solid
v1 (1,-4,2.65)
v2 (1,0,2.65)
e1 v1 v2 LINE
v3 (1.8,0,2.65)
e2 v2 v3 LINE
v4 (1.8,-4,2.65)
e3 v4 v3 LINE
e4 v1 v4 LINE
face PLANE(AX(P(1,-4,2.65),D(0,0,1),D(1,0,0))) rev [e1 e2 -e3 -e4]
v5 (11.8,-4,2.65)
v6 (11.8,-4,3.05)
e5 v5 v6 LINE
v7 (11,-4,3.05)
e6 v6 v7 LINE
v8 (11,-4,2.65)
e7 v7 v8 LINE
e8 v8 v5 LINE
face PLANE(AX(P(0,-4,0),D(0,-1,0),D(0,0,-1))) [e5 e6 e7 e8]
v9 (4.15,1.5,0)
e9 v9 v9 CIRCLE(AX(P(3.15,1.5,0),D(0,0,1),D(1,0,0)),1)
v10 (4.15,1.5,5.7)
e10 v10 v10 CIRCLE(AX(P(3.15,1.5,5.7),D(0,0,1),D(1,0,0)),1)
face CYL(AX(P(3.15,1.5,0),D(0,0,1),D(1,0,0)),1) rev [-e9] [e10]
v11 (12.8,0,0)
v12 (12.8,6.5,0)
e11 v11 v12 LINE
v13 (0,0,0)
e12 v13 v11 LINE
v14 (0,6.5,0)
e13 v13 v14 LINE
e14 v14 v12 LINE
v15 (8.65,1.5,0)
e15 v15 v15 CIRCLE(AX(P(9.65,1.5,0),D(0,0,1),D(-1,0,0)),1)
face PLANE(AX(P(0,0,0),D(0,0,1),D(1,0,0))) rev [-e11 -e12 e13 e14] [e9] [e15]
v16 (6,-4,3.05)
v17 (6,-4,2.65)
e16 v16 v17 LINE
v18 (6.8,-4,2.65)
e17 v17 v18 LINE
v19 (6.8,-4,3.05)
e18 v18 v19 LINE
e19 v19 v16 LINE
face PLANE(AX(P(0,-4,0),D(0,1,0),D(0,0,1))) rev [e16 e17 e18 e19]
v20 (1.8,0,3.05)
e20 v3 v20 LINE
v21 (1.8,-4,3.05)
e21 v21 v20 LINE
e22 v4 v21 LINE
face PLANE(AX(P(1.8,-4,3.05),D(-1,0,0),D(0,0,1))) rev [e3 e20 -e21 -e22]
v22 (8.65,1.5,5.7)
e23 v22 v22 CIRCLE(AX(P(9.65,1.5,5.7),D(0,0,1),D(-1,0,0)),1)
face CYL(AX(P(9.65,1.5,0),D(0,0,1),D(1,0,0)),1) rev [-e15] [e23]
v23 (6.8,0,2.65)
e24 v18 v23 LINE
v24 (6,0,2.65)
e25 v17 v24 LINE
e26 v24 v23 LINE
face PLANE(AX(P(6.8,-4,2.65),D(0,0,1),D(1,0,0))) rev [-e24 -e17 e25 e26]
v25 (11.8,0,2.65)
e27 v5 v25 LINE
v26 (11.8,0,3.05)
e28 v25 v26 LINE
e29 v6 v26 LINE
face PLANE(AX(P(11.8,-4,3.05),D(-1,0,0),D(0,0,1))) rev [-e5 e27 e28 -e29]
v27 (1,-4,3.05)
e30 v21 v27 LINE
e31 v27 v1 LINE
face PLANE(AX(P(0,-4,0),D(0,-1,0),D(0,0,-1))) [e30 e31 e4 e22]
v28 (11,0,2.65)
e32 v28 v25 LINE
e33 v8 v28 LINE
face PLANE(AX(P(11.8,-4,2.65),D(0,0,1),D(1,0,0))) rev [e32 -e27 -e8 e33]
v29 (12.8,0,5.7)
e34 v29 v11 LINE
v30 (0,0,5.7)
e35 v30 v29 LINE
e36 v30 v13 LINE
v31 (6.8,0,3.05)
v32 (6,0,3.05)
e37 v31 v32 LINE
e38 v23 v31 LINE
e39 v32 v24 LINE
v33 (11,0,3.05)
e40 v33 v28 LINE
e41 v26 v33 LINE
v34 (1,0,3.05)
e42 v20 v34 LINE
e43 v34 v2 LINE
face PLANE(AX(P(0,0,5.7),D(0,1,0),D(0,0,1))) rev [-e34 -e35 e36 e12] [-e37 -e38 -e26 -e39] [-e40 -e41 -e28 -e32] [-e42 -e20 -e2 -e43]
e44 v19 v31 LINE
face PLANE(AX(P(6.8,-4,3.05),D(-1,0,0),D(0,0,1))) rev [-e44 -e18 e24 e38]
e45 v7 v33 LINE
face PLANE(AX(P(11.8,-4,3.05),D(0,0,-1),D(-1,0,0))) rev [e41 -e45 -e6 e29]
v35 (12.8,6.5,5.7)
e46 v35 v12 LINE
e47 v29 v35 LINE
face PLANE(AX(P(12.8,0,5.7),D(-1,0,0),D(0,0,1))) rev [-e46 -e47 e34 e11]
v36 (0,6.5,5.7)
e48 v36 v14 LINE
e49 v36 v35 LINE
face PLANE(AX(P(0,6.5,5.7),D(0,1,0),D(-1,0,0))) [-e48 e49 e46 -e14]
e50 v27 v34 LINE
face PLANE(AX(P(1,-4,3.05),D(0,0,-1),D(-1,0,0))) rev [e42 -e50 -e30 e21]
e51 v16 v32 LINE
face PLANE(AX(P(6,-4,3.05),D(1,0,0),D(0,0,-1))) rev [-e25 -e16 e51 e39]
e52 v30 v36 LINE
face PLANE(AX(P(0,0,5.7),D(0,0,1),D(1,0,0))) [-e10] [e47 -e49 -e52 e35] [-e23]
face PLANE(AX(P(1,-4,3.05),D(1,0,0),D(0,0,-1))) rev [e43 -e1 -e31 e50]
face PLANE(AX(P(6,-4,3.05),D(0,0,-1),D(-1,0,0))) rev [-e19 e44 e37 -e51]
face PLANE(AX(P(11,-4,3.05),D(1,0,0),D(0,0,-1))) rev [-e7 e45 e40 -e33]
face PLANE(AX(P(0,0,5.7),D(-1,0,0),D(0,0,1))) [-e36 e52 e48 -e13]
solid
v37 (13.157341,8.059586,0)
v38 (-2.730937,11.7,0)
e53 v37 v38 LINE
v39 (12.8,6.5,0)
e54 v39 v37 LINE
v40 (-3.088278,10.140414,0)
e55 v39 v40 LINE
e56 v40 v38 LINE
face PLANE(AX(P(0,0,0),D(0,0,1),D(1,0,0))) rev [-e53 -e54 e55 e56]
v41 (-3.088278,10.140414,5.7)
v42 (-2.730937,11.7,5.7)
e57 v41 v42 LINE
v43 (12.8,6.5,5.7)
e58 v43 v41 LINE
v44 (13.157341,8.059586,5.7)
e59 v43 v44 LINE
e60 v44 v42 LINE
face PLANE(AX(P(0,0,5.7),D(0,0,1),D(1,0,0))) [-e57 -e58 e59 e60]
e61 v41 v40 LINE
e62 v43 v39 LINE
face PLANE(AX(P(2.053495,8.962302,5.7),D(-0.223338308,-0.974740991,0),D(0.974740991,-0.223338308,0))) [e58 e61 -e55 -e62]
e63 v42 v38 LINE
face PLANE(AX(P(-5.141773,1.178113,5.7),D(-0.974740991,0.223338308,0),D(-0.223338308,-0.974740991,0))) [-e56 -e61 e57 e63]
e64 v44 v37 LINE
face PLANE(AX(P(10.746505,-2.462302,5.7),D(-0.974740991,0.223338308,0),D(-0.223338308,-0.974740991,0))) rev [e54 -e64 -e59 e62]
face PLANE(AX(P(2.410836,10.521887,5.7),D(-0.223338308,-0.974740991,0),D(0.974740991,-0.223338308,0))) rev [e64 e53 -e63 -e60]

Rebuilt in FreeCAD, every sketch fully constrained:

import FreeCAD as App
import Part
import Sketcher
from FreeCAD import Vector
Q = App.Units.Quantity

doc = App.newDocument("Part")
body = doc.addObject("PartDesign::Body", "Body")

# Sketch on XY plane
sketch1 = doc.addObject("Sketcher::SketchObject", "Sketch")
body.addObject(sketch1)
sketch1.AttachmentSupport = (doc.XY_Plane, [""])
sketch1.MapMode = "FlatFace"
sketch1.addGeometry([
    Part.LineSegment(Vector(12.8, 6.5, 0), Vector(13.157341, 8.059586, 0)),
    Part.LineSegment(Vector(13.157341, 8.059586, 0), Vector(-2.730937, 11.7, 0)),
    Part.LineSegment(Vector(-2.730937, 11.7, 0), Vector(-3.088278, 10.140414, 0)),
    Part.LineSegment(Vector(-3.088278, 10.140414, 0), Vector(12.8, 6.5, 0)),
], False)
sketch1.addConstraint([
    Sketcher.Constraint("Coincident", 0, 2, 1, 1),
    Sketcher.Constraint("Coincident", 1, 2, 2, 1),
    Sketcher.Constraint("Coincident", 2, 2, 3, 1),
    Sketcher.Constraint("Coincident", 3, 2, 0, 1),
    Sketcher.Constraint("Perpendicular", 0, 1),
    Sketcher.Constraint("Perpendicular", 1, 2),
    Sketcher.Constraint("Perpendicular", 2, 3),
    Sketcher.Constraint("Distance", 0, Q("1.6 mm")),
    Sketcher.Constraint("Distance", 1, Q("16.3 mm")),
    Sketcher.Constraint("DistanceY", -1, 1, 1, 2, Q("11.7 mm")),
    Sketcher.Constraint("DistanceX", -1, 1, 3, 2, Q("12.8 mm")),
    Sketcher.Constraint("DistanceY", -1, 1, 3, 2, Q("6.5 mm")),
])
pad1 = doc.addObject("PartDesign::Pad", "Pad")
body.addObject(pad1)
pad1.Profile = sketch1
pad1.Length = 5.7
body2 = doc.addObject("PartDesign::Body", "Body001")

# Sketch on XY plane
sketch2 = doc.addObject("Sketcher::SketchObject", "Sketch001")
body2.addObject(sketch2)
sketch2.AttachmentSupport = (doc.getObject("XY_Plane001"), [""])
sketch2.MapMode = "FlatFace"
sketch2.addGeometry([
    Part.LineSegment(Vector(0, 6.5, 0), Vector(0, 0, 0)),
    Part.LineSegment(Vector(0, 0, 0), Vector(12.8, 0, 0)),
    Part.LineSegment(Vector(12.8, 0, 0), Vector(12.8, 6.5, 0)),
    Part.LineSegment(Vector(12.8, 6.5, 0), Vector(0, 6.5, 0)),
], False)
sketch2.addConstraint([
    Sketcher.Constraint("Coincident", 0, 2, 1, 1),
    Sketcher.Constraint("Coincident", 1, 2, 2, 1),
    Sketcher.Constraint("Coincident", 2, 2, 3, 1),
    Sketcher.Constraint("Coincident", 3, 2, 0, 1),
    Sketcher.Constraint("Vertical", 0),
    Sketcher.Constraint("Horizontal", 1),
    Sketcher.Constraint("Vertical", 2),
    Sketcher.Constraint("Horizontal", 3),
    Sketcher.Constraint("Coincident", 0, 2, -1, 1),
    Sketcher.Constraint("DistanceX", 1, 1, 1, 2, Q("12.8 mm")),
    Sketcher.Constraint("DistanceY", 0, 2, 0, 1, Q("6.5 mm")),
])
pad2 = doc.addObject("PartDesign::Pad", "Pad001")
body2.addObject(pad2)
pad2.Profile = sketch2
pad2.Length = 5.7

# Sketch on XY plane
sketch3 = doc.addObject("Sketcher::SketchObject", "Sketch002")
body2.addObject(sketch3)
sketch3.AttachmentSupport = (doc.getObject("XY_Plane001"), [""])
sketch3.MapMode = "FlatFace"
sketch3.AttachmentOffset = App.Placement(Vector(0, 0, 5.7), App.Rotation())
sketch3.addGeometry([
    Part.Circle(Vector(3.15, 1.5, 0), Vector(0, 0, 1), 1),
    Part.Circle(Vector(9.65, 1.5, 0), Vector(0, 0, 1), 1),
], False)
sketch3.addConstraint([
    Sketcher.Constraint("Equal", 0, 1),
    Sketcher.Constraint("Horizontal", 0, 3, 1, 3),
    Sketcher.Constraint("Diameter", 0, Q("2 mm")),
    Sketcher.Constraint("DistanceY", -1, 1, 0, 3, Q("1.5 mm")),
    Sketcher.Constraint("DistanceX", 0, 3, 1, 3, Q("6.5 mm")),
    Sketcher.Constraint("DistanceX", -1, 1, 0, 3, Q("3.15 mm")),
])
pocket1 = doc.addObject("PartDesign::Pocket", "Pocket")
body2.addObject(pocket1)
pocket1.Profile = sketch3
pocket1.Length = 5.7

# Sketch on XZ plane
sketch4 = doc.addObject("Sketcher::SketchObject", "Sketch003")
body2.addObject(sketch4)
sketch4.AttachmentSupport = (doc.getObject("XZ_Plane001"), [""])
sketch4.MapMode = "FlatFace"
sketch4.addGeometry([
    Part.LineSegment(Vector(6, 3.05, 0), Vector(6, 2.65, 0)),  # 0
    Part.LineSegment(Vector(6, 2.65, 0), Vector(6.8, 2.65, 0)),  # 1
    Part.LineSegment(Vector(6.8, 2.65, 0), Vector(6.8, 3.05, 0)),  # 2
    Part.LineSegment(Vector(6.8, 3.05, 0), Vector(6, 3.05, 0)),  # 3
    Part.LineSegment(Vector(1, 3.05, 0), Vector(1, 2.65, 0)),  # 4
    Part.LineSegment(Vector(1, 2.65, 0), Vector(1.8, 2.65, 0)),  # 5
    Part.LineSegment(Vector(1.8, 2.65, 0), Vector(1.8, 3.05, 0)),  # 6
    Part.LineSegment(Vector(1.8, 3.05, 0), Vector(1, 3.05, 0)),  # 7
    Part.LineSegment(Vector(11, 3.05, 0), Vector(11, 2.65, 0)),  # 8
    Part.LineSegment(Vector(11, 2.65, 0), Vector(11.8, 2.65, 0)),  # 9
    Part.LineSegment(Vector(11.8, 2.65, 0), Vector(11.8, 3.05, 0)),  # 10
    Part.LineSegment(Vector(11.8, 3.05, 0), Vector(11, 3.05, 0)),  # 11
], False)
sketch4.addConstraint([
    Sketcher.Constraint("Coincident", 0, 2, 1, 1),
    Sketcher.Constraint("Coincident", 1, 2, 2, 1),
    Sketcher.Constraint("Coincident", 2, 2, 3, 1),
    Sketcher.Constraint("Coincident", 3, 2, 0, 1),
    Sketcher.Constraint("Coincident", 4, 2, 5, 1),
    Sketcher.Constraint("Coincident", 5, 2, 6, 1),
    Sketcher.Constraint("Coincident", 6, 2, 7, 1),
    Sketcher.Constraint("Coincident", 7, 2, 4, 1),
    Sketcher.Constraint("Coincident", 8, 2, 9, 1),
    Sketcher.Constraint("Coincident", 9, 2, 10, 1),
    Sketcher.Constraint("Coincident", 10, 2, 11, 1),
    Sketcher.Constraint("Coincident", 11, 2, 8, 1),
    Sketcher.Constraint("Vertical", 0),
    Sketcher.Constraint("Horizontal", 1),
    Sketcher.Constraint("Vertical", 2),
    Sketcher.Constraint("Horizontal", 3),
    Sketcher.Constraint("Vertical", 4),
    Sketcher.Constraint("Horizontal", 5),
    Sketcher.Constraint("Vertical", 6),
    Sketcher.Constraint("Horizontal", 7),
    Sketcher.Constraint("Vertical", 8),
    Sketcher.Constraint("Horizontal", 9),
    Sketcher.Constraint("Vertical", 10),
    Sketcher.Constraint("Horizontal", 11),
    Sketcher.Constraint("Horizontal", 1, 2, 4, 2),
    Sketcher.Constraint("Horizontal", 3, 2, 6, 2),
    Sketcher.Constraint("Horizontal", 5, 2, 8, 2),
    Sketcher.Constraint("Horizontal", 7, 2, 10, 2),
    Sketcher.Constraint("Equal", 3, 5),
    Sketcher.Constraint("Equal", 7, 9),
    Sketcher.Constraint("DistanceX", 1, 1, 1, 2, Q("0.8 mm")),
    Sketcher.Constraint("DistanceY", 0, 2, 0, 1, Q("0.4 mm")),
    Sketcher.Constraint("DistanceX", -1, 1, 0, 2, Q("6 mm")),
    Sketcher.Constraint("DistanceX", -1, 1, 4, 2, Q("1 mm")),
    Sketcher.Constraint("DistanceX", -1, 1, 8, 2, Q("11 mm")),
    Sketcher.Constraint("DistanceY", -1, 1, 0, 2, Q("2.65 mm")),
])
pad3 = doc.addObject("PartDesign::Pad", "Pad002")
body2.addObject(pad3)
pad3.Profile = sketch4
pad3.Length = 4

doc.recompute()
